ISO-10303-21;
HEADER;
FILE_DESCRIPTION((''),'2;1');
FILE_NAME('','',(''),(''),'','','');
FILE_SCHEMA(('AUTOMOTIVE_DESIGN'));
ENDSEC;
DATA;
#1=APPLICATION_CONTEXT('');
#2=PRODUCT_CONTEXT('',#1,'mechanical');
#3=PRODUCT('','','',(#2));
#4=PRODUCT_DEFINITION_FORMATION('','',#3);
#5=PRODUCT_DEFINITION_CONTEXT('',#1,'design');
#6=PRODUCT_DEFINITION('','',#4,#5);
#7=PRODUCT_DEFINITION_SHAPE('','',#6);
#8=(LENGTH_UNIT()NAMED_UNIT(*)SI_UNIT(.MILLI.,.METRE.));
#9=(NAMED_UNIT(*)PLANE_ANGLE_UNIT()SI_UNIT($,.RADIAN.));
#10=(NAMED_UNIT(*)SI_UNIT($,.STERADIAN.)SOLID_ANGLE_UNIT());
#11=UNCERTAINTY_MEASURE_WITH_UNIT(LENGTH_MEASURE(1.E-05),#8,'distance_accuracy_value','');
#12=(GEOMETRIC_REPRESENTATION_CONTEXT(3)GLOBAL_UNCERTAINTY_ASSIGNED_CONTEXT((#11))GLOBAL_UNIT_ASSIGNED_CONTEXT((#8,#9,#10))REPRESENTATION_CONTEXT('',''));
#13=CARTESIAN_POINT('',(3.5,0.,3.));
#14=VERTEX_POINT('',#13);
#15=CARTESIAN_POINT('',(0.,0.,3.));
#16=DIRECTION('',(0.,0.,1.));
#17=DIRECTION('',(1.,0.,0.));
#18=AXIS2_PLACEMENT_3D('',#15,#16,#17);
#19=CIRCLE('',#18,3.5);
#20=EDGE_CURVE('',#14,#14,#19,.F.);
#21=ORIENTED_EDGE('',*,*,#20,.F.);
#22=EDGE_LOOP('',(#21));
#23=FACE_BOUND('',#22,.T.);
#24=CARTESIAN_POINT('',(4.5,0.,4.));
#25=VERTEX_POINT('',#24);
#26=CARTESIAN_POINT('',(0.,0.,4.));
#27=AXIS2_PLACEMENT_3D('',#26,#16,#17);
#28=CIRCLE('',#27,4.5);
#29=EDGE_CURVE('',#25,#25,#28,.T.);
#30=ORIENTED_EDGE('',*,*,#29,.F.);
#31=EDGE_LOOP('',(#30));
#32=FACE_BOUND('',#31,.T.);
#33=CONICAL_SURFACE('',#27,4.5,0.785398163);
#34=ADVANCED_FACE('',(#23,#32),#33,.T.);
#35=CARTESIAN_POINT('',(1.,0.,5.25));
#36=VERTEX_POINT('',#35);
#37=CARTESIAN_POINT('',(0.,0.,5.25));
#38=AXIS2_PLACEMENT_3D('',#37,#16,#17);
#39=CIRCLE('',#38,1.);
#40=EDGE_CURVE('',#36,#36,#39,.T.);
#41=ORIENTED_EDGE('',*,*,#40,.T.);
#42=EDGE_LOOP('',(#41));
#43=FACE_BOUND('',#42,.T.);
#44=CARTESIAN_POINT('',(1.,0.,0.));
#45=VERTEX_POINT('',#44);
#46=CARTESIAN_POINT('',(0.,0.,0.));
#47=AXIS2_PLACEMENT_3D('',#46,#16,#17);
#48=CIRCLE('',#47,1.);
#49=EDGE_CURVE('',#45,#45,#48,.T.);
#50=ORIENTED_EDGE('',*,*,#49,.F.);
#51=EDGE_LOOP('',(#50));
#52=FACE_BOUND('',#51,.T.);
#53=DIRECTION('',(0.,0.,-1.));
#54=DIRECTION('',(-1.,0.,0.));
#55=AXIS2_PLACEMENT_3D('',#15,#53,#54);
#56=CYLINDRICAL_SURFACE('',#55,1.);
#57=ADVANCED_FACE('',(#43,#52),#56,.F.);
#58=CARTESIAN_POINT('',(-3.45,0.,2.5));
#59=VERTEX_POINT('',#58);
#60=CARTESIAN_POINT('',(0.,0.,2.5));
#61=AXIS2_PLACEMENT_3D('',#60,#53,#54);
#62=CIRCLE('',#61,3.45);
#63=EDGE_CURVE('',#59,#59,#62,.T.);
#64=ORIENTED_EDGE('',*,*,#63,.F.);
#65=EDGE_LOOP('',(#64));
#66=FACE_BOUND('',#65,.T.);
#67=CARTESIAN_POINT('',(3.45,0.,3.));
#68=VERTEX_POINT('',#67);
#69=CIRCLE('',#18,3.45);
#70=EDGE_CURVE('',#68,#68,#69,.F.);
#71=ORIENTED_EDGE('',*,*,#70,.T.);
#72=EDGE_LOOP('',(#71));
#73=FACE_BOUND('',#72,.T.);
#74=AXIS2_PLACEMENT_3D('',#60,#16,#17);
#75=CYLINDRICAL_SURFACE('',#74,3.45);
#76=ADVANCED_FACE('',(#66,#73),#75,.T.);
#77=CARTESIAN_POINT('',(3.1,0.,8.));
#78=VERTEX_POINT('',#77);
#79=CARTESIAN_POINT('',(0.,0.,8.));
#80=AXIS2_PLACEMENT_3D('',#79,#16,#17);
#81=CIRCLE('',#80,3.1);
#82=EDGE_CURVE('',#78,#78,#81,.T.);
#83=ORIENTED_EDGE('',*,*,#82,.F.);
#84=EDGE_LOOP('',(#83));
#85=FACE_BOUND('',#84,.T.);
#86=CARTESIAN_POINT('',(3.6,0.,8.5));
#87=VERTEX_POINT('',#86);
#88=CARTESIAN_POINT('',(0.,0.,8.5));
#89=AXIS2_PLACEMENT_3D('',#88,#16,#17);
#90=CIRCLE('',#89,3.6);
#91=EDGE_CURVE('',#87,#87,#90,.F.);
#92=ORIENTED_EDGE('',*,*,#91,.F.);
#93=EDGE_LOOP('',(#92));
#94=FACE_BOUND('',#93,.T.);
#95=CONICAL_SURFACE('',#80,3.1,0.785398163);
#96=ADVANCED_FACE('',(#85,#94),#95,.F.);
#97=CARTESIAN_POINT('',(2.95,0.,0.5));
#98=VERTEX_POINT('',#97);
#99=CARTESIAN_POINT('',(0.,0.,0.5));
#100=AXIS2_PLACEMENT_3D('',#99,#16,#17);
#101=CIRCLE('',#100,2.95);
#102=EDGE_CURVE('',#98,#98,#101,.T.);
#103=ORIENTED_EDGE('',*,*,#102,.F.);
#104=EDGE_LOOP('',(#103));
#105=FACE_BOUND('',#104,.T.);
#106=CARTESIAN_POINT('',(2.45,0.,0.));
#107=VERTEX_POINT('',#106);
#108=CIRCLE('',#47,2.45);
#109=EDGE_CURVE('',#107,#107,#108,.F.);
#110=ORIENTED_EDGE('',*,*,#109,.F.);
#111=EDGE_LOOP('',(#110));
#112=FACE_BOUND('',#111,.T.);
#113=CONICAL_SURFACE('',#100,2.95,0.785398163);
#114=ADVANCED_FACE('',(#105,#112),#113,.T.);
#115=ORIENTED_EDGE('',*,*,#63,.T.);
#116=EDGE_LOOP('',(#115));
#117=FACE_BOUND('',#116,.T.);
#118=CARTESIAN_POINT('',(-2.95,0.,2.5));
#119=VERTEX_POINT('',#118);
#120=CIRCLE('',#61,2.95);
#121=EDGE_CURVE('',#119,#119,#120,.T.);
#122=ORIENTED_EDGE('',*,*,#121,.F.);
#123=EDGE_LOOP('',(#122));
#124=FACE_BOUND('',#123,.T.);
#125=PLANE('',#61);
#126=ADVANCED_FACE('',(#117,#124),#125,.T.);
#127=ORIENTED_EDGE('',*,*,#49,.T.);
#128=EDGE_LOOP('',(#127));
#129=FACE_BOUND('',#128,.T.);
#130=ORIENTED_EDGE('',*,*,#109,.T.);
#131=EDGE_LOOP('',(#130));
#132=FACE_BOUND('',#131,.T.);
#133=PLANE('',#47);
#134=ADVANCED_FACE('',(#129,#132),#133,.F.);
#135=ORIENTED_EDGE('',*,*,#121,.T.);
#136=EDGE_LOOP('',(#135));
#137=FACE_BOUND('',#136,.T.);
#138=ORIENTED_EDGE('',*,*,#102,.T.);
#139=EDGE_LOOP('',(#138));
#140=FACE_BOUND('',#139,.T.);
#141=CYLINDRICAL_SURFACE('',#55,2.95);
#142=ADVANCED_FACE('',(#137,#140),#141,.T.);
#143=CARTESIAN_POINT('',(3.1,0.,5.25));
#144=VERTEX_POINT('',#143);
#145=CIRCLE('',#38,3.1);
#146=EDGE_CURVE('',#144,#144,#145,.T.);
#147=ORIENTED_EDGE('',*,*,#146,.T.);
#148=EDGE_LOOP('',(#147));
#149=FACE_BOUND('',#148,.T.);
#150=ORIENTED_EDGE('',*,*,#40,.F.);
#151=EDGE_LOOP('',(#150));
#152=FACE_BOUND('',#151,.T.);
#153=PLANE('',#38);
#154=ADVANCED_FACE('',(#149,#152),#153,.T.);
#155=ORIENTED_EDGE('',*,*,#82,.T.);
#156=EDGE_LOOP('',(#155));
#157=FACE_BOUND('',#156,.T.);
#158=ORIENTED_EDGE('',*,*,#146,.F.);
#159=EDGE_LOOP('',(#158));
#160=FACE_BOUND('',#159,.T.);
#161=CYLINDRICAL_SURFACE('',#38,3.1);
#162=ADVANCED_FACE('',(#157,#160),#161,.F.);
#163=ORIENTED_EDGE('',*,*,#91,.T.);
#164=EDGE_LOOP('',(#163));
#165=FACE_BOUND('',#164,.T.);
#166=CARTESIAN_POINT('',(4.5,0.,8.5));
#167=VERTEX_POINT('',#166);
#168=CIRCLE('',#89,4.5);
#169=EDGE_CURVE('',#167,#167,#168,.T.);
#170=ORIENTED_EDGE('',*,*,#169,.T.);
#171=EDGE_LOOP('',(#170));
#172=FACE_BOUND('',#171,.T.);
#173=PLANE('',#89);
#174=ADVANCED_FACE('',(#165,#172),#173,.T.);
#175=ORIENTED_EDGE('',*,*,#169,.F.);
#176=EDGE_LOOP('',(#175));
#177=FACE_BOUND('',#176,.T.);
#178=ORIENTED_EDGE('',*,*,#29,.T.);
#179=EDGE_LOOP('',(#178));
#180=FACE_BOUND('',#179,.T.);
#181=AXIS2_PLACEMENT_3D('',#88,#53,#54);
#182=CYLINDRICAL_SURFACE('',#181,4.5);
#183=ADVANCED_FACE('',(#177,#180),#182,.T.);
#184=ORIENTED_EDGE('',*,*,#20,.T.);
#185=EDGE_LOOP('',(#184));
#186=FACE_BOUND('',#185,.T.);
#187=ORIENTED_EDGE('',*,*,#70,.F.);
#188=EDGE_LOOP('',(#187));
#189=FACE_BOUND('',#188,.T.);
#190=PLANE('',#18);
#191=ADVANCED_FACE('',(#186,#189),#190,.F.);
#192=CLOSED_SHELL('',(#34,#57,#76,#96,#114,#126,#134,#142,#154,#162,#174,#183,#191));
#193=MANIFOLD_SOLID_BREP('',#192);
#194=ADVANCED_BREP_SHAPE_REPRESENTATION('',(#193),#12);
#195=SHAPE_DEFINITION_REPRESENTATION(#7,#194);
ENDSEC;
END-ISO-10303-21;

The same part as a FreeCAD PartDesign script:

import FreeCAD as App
import Part
import Sketcher
from FreeCAD import Vector
Q = App.Units.Quantity


def edges_at(feature, points):
    """Names of the edges that pass closest to the given points."""
    edges = feature.Shape.Edges
    near = lambda p: min(range(len(edges)), key=lambda i: edges[i].distToShape(Part.Vertex(*p))[0])
    return sorted({f"Edge{near(p) + 1}" for p in points})

doc = App.newDocument("Part")
params = doc.addObject("Spreadsheet::Sheet", "Params")
for row, (alias, value) in enumerate([
    ("sketch1_diameter", "2 mm"),
    ("sketch1_diameter2", "5.9 mm"),
    ("pad1_length", "3 mm"),
    ("sketch2_diameter", "9 mm"),
    ("sketch2_diameter2", "2 mm"),
    ("pad2_length", "5.5 mm"),
    ("sketch3_diameter", "6.2 mm"),
    ("pocket1_length", "3.25 mm"),
    ("chamfer_size", "0.5 mm"),
    ("chamfer2_size", "0.5 mm"),
    ("sketch4_diameter", "2 mm"),
    ("sketch4_diameter2", "6.9 mm"),
    ("pad3_length", "0.5 mm"),
    ("chamfer3_size", "1 mm"),
], start=1):
    params.set(f"A{row}", alias)
    params.set(f"B{row}", "=" + value)
    params.setAlias(f"B{row}", alias)

body = doc.addObject("PartDesign::Body", "Body")

# Sketch on XY plane
sketch1 = body.newObject("Sketcher::SketchObject", "Sketch")
sketch1.AttachmentSupport = (doc.getObject("XY_Plane"), [""])
sketch1.MapMode = "FlatFace"
sketch1.addGeometry([
    Part.Circle(Vector(0, 0, 0), Vector(0, 0, 1), 3),
    Part.Circle(Vector(0, 0, 0), Vector(0, 0, 1), 1),
], False)
sketch1.addConstraint([
    Sketcher.Constraint("Coincident", 0, 3, -1, 1),
    Sketcher.Constraint("Coincident", 1, 3, -1, 1),
    Sketcher.Constraint("Diameter", 1, Q("2 mm")),
    Sketcher.Constraint("Diameter", 0, Q("5.9 mm")),
])
sketch1.setExpression("Constraints[2]", "Params.sketch1_diameter")
sketch1.setExpression("Constraints[3]", "Params.sketch1_diameter2")
pad1 = body.newObject("PartDesign::Pad", "Pad")
pad1.Profile = sketch1
pad1.setExpression("Length", "Params.pad1_length")

# Sketch on XY plane
sketch2 = body.newObject("Sketcher::SketchObject", "Sketch001")
sketch2.AttachmentSupport = (doc.getObject("XY_Plane"), [""])
sketch2.MapMode = "FlatFace"
sketch2.AttachmentOffset = App.Placement(Vector(0, 0, 3), App.Rotation())
sketch2.addGeometry([
    Part.Circle(Vector(0, 0, 0), Vector(0, 0, 1), 4.5),
    Part.Circle(Vector(0, 0, 0), Vector(0, 0, 1), 1),
], False)
sketch2.addConstraint([
    Sketcher.Constraint("Coincident", 0, 3, -1, 1),
    Sketcher.Constraint("Coincident", 1, 3, -1, 1),
    Sketcher.Constraint("Diameter", 0, Q("9 mm")),
    Sketcher.Constraint("Diameter", 1, Q("2 mm")),
])
sketch2.setExpression("Constraints[2]", "Params.sketch2_diameter")
sketch2.setExpression("Constraints[3]", "Params.sketch2_diameter2")
pad2 = body.newObject("PartDesign::Pad", "Pad001")
pad2.Profile = sketch2
pad2.setExpression("Length", "Params.pad2_length")

# Sketch on XY plane
sketch3 = body.newObject("Sketcher::SketchObject", "Sketch002")
sketch3.AttachmentSupport = (doc.getObject("XY_Plane"), [""])
sketch3.MapMode = "FlatFace"
sketch3.AttachmentOffset = App.Placement(Vector(0, 0, 8.5), App.Rotation())
sketch3.addGeometry(Part.Circle(Vector(0, 0, 0), Vector(0, 0, 1), 3.1), False)
sketch3.addConstraint([
    Sketcher.Constraint("Coincident", 0, 3, -1, 1),
    Sketcher.Constraint("Diameter", 0, Q("6.2 mm")),
])
sketch3.setExpression("Constraints[1]", "Params.sketch3_diameter")
pocket1 = body.newObject("PartDesign::Pocket", "Pocket")
pocket1.Profile = sketch3
pocket1.setExpression("Length", "Params.pocket1_length")
doc.recompute()

chamfer = body.newObject("PartDesign::Chamfer", "Chamfer")
chamfer.Base = (pocket1, edges_at(pocket1, [(-3.1, 0, 8.5)]))
chamfer.setExpression("Size", "Params.chamfer_size")
doc.recompute()

chamfer2 = body.newObject("PartDesign::Chamfer", "Chamfer001")
chamfer2.Base = (chamfer, edges_at(chamfer, [(-2.95, 0, 0)]))
chamfer2.setExpression("Size", "Params.chamfer2_size")

# Sketch on XY plane
sketch4 = body.newObject("Sketcher::SketchObject", "Sketch003")
sketch4.AttachmentSupport = (doc.getObject("XY_Plane"), [""])
sketch4.MapMode = "FlatFace"
sketch4.AttachmentOffset = App.Placement(Vector(0, 0, 3), App.Rotation())
sketch4.addGeometry([
    Part.Circle(Vector(0, 0, 0), Vector(0, 0, 1), 3.5),
    Part.Circle(Vector(0, 0, 0), Vector(0, 0, 1), 1),
], False)
sketch4.addConstraint([
    Sketcher.Constraint("Coincident", 0, 3, -1, 1),
    Sketcher.Constraint("Coincident", 1, 3, -1, 1),
    Sketcher.Constraint("Diameter", 1, Q("2 mm")),
    Sketcher.Constraint("Diameter", 0, Q("6.9 mm")),
])
sketch4.setExpression("Constraints[2]", "Params.sketch4_diameter")
sketch4.setExpression("Constraints[3]", "Params.sketch4_diameter2")
pad3 = body.newObject("PartDesign::Pad", "Pad002")
pad3.Profile = sketch4
pad3.setExpression("Length", "Params.pad3_length")
pad3.Reversed = True
doc.recompute()

chamfer3 = body.newObject("PartDesign::Chamfer", "Chamfer002")
chamfer3.Base = (pad3, edges_at(pad3, [(-4.5, 0, 3)]))
chamfer3.setExpression("Size", "Params.chamfer3_size")

doc.recompute()
